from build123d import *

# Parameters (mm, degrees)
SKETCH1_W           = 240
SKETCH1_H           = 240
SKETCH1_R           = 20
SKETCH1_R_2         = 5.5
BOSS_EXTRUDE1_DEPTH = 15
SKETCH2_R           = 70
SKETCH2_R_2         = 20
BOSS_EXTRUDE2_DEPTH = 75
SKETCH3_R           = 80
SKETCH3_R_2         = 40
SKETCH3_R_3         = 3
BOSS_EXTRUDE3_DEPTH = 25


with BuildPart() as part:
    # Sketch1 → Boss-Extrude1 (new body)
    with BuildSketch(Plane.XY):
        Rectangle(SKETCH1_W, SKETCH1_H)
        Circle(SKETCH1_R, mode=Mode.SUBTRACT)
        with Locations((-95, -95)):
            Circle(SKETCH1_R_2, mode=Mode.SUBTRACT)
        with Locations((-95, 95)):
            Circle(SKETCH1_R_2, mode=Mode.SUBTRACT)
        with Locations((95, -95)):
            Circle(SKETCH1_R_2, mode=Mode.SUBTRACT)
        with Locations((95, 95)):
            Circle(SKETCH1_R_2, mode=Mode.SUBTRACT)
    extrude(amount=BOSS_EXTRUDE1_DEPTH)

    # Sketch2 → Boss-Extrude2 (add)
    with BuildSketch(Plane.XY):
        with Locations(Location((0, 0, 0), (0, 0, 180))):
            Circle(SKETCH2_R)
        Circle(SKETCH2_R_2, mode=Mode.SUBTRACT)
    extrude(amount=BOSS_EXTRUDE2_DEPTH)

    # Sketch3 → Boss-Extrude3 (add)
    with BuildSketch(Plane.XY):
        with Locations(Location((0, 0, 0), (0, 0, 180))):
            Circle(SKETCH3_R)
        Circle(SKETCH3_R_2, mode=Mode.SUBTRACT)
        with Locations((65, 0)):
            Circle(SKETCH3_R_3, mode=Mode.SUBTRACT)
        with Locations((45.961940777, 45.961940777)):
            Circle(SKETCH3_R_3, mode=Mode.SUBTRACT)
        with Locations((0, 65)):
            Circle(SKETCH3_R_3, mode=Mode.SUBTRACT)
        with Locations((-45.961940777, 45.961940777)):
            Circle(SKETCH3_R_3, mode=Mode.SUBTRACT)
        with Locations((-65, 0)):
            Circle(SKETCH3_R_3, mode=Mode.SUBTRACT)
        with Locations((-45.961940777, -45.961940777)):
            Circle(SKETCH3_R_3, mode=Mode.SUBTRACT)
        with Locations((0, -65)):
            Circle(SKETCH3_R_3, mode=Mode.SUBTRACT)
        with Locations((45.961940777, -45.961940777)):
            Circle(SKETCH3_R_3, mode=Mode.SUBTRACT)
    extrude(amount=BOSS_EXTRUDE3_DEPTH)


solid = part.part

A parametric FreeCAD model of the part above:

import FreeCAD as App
import Part
import Sketcher

V = App.Vector

doc = App.newDocument("Part")
params = doc.addObject("Spreadsheet::Sheet", "Params")
for row, (alias, value) in enumerate([
    ("sketch1_diameter", "11 mm"),
    ("sketch1_diameter2", "40 mm"),
    ("sketch1_width", "240 mm"),
    ("pad1_length", "15 mm"),
    ("sketch2_diameter", "140 mm"),
    ("sketch2_diameter2", "40 mm"),
    ("pad2_length", "75 mm"),
    ("sketch3_diameter", "160 mm"),
    ("sketch3_diameter2", "6 mm"),
    ("sketch3_diameter3", "80 mm"),
    ("pad3_length", "25 mm"),
], start=1):
    params.set(f"A{row}", alias)
    params.set(f"B{row}", "=" + value)
    params.setAlias(f"B{row}", alias)

body = doc.addObject("PartDesign::Body", "Body")

# Sketch on XY plane
sketch1 = body.newObject("Sketcher::SketchObject", "Sketch")
sketch1.AttachmentSupport = (doc.getObject("XY_Plane"), [""])
sketch1.MapMode = "FlatFace"
sketch1.addGeometry([
    Part.LineSegment(V(-120, 120, 0), V(-120, -120, 0)),  # 0
    Part.LineSegment(V(-120, -120, 0), V(120, -120, 0)),  # 1
    Part.LineSegment(V(120, -120, 0), V(120, 120, 0)),  # 2
    Part.LineSegment(V(120, 120, 0), V(-120, 120, 0)),  # 3
    Part.Circle(V(-95, -95, 0), V(0, 0, 1), 6),  # 4
    Part.Circle(V(95, -95, 0), V(0, 0, 1), 6),  # 5
    Part.Circle(V(-95, 95, 0), V(0, 0, 1), 6),  # 6
    Part.Circle(V(0, 0, 0), V(0, 0, 1), 20),  # 7
    Part.Circle(V(95, 95, 0), V(0, 0, 1), 6),  # 8
], False)
sketch1.addConstraint([
    Sketcher.Constraint("Coincident", 0, 2, 1, 1),
    Sketcher.Constraint("Coincident", 1, 2, 2, 1),
    Sketcher.Constraint("Coincident", 2, 2, 3, 1),
    Sketcher.Constraint("Coincident", 3, 2, 0, 1),
    Sketcher.Constraint("Vertical", 0),
    Sketcher.Constraint("Horizontal", 1),
    Sketcher.Constraint("Vertical", 2),
    Sketcher.Constraint("Horizontal", 3),
    Sketcher.Constraint("Coincident", 7, 3, -1, 1),
    Sketcher.Constraint("Equal", 4, 5),
    Sketcher.Constraint("Equal", 5, 6),
    Sketcher.Constraint("Equal", 6, 8),
    Sketcher.Constraint("Symmetric", 5, 3, 6, 3, -1, 1),
    Sketcher.Constraint("Symmetric", 4, 3, 8, 3, -1, 1),
    Sketcher.Constraint("Symmetric", 0, 2, 2, 2, -1, 1),
    Sketcher.Constraint("Symmetric", 4, 3, 5, 3, -2),
    Sketcher.Constraint("Equal", 3, 0),
    Sketcher.Constraint("Diameter", 4, 11.0),
    Sketcher.Constraint("Diameter", 7, 40.0),
    Sketcher.Constraint("DistanceX", 1, 1, 1, 2, 240.0),
    Sketcher.Constraint("DistanceX", 4, 3, -1, 1, 95.0),
    Sketcher.Constraint("DistanceY", 4, 3, -1, 1, 95.0),
])
sketch1.setExpression("Constraints[17]", "Params.sketch1_diameter")
sketch1.setExpression("Constraints[18]", "Params.sketch1_diameter2")
sketch1.setExpression("Constraints[19]", "Params.sketch1_width")
pad1 = body.newObject("PartDesign::Pad", "Pad")
pad1.Profile = sketch1
pad1.setExpression("Length", "Params.pad1_length")

# Sketch on XY plane
sketch2 = body.newObject("Sketcher::SketchObject", "Sketch001")
sketch2.AttachmentSupport = (doc.getObject("XY_Plane"), [""])
sketch2.MapMode = "FlatFace"
sketch2.addGeometry([
    Part.Circle(V(0, 0, 0), V(0, 0, 1), 70),
    Part.Circle(V(0, 0, 0), V(0, 0, 1), 20),
], False)
sketch2.addConstraint([
    Sketcher.Constraint("Coincident", 0, 3, -1, 1),
    Sketcher.Constraint("Coincident", 1, 3, -1, 1),
    Sketcher.Constraint("Diameter", 0, 140.0),
    Sketcher.Constraint("Diameter", 1, 40.0),
])
sketch2.setExpression("Constraints[2]", "Params.sketch2_diameter")
sketch2.setExpression("Constraints[3]", "Params.sketch2_diameter2")
pad2 = body.newObject("PartDesign::Pad", "Pad001")
pad2.Profile = sketch2
pad2.setExpression("Length", "Params.pad2_length")

# Sketch on XY plane
sketch3 = body.newObject("Sketcher::SketchObject", "Sketch002")
sketch3.AttachmentSupport = (doc.getObject("XY_Plane"), [""])
sketch3.MapMode = "FlatFace"
sketch3.addGeometry([
    Part.Circle(V(0, 0, 0), V(0, 0, 1), 80),  # 0
    Part.Circle(V(46, 46, 0), V(0, 0, 1), 3),  # 1
    Part.Circle(V(65, 0, 0), V(0, 0, 1), 3),  # 2
    Part.Circle(V(0, 65, 0), V(0, 0, 1), 3),  # 3
    Part.Circle(V(-46, 46, 0), V(0, 0, 1), 3),  # 4
    Part.Circle(V(46, -46, 0), V(0, 0, 1), 3),  # 5
    Part.Circle(V(0, 0, 0), V(0, 0, 1), 40),  # 6
    Part.Circle(V(-65, 0, 0), V(0, 0, 1), 3),  # 7
    Part.Circle(V(0, -65, 0), V(0, 0, 1), 3),  # 8
    Part.Circle(V(-46, -46, 0), V(0, 0, 1), 3),  # 9
], False)
sketch3.addConstraint([
    Sketcher.Constraint("Coincident", 0, 3, -1, 1),
    Sketcher.Constraint("Coincident", 6, 3, -1, 1),
    Sketcher.Constraint("Equal", 1, 2),
    Sketcher.Constraint("Equal", 2, 3),
    Sketcher.Constraint("Equal", 3, 4),
    Sketcher.Constraint("Equal", 4, 5),
    Sketcher.Constraint("Equal", 5, 7),
    Sketcher.Constraint("Equal", 7, 8),
    Sketcher.Constraint("Equal", 8, 9),
    Sketcher.Constraint("Symmetric", 4, 3, 5, 3, -1, 1),
    Sketcher.Constraint("Symmetric", 2, 3, 7, 3, -1, 1),
    Sketcher.Constraint("Symmetric", 3, 3, 8, 3, -1, 1),
    Sketcher.Constraint("Symmetric", 1, 3, 9, 3, -1, 1),
    Sketcher.Constraint("Symmetric", 1, 3, 4, 3, -2),
    Sketcher.Constraint("PointOnObject", 2, 3, -1),
    Sketcher.Constraint("PointOnObject", 3, 3, -2),
    Sketcher.Constraint("Diameter", 0, 160.0),
    Sketcher.Constraint("Diameter", 1, 6.0),
    Sketcher.Constraint("Diameter", 6, 80.0),
    Sketcher.Constraint("DistanceX", -1, 1, 2, 3, 65.0),
    Sketcher.Constraint("DistanceY", -1, 1, 3, 3, 65.0),
    Sketcher.Constraint("DistanceX", -1, 1, 1, 3, 45.961941),
    Sketcher.Constraint("DistanceY", -1, 1, 1, 3, 45.961941),
])
sketch3.setExpression("Constraints[16]", "Params.sketch3_diameter")
sketch3.setExpression("Constraints[17]", "Params.sketch3_diameter2")
sketch3.setExpression("Constraints[18]", "Params.sketch3_diameter3")
pad3 = body.newObject("PartDesign::Pad", "Pad002")
pad3.Profile = sketch3
pad3.setExpression("Length", "Params.pad3_length")

doc.recompute()
